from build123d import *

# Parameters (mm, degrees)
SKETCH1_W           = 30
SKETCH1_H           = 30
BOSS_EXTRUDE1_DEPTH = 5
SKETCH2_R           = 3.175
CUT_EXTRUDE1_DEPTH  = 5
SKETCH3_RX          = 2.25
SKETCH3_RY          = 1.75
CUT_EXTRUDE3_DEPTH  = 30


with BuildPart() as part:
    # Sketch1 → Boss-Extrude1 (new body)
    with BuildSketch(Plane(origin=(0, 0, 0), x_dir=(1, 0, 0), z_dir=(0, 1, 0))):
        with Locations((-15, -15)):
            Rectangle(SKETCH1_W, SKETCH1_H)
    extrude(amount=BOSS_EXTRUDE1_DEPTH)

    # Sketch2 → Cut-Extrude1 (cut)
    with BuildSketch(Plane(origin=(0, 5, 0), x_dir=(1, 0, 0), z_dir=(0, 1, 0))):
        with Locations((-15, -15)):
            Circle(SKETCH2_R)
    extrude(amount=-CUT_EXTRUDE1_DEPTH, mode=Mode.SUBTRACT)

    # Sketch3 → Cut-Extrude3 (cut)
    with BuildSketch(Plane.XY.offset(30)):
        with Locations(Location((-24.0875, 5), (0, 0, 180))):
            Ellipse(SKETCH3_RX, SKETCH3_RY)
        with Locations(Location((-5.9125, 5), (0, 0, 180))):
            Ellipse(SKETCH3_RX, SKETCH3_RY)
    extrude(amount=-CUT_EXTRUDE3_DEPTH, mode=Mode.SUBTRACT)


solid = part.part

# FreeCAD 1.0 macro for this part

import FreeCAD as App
import Part
import Sketcher

V = App.Vector
Q = App.Units.Quantity

doc = App.newDocument("Part")
body = doc.addObject("PartDesign::Body", "Body")

# Sketch on XZ plane
sketch1 = body.newObject("Sketcher::SketchObject", "Sketch")
sketch1.AttachmentSupport = (doc.getObject("XZ_Plane"), [""])
sketch1.MapMode = "FlatFace"
sketch1.addGeometry(Part.LineSegment(V(-30, 0, 0), V(-30, 30, 0)), False)
sketch1.addGeometry(Part.LineSegment(V(-30, 30, 0), V(0, 30, 0)), False)
sketch1.addGeometry(Part.LineSegment(V(0, 30, 0), V(0, 0, 0)), False)
sketch1.addGeometry(Part.LineSegment(V(0, 0, 0), V(-30, 0, 0)), False)
sketch1.addConstraint(Sketcher.Constraint("Coincident", 0, 2, 1, 1))
sketch1.addConstraint(Sketcher.Constraint("Coincident", 1, 2, 2, 1))
sketch1.addConstraint(Sketcher.Constraint("Coincident", 2, 2, 3, 1))
sketch1.addConstraint(Sketcher.Constraint("Coincident", 3, 2, 0, 1))
sketch1.addConstraint(Sketcher.Constraint("Vertical", 0))
sketch1.addConstraint(Sketcher.Constraint("Horizontal", 1))
sketch1.addConstraint(Sketcher.Constraint("Vertical", 2))
sketch1.addConstraint(Sketcher.Constraint("Horizontal", 3))
sketch1.addConstraint(Sketcher.Constraint("Coincident", 2, 2, -1, 1))
sketch1.addConstraint(Sketcher.Constraint("Equal", 3, 0))
sketch1.addConstraint(Sketcher.Constraint("DistanceX", 1, 1, 1, 2, Q("30 mm")))
pad1 = body.newObject("PartDesign::Pad", "Pad")
pad1.Profile = sketch1
pad1.Length = 5
pad1.Reversed = True

# Sketch on XZ plane
sketch2 = body.newObject("Sketcher::SketchObject", "Sketch001")
sketch2.AttachmentSupport = (doc.getObject("XZ_Plane"), [""])
sketch2.MapMode = "FlatFace"
sketch2.AttachmentOffset = App.Placement(V(0, 0, -5), App.Rotation())
sketch2.addGeometry(Part.Circle(V(-15, 15, 0), V(0, 0, 1), 3.2), False)
sketch2.addConstraint(Sketcher.Constraint("Diameter", 0, Q("6.35 mm")))
sketch2.addConstraint(Sketcher.Constraint("DistanceX", 0, 3, -1, 1, Q("15 mm")))
sketch2.addConstraint(Sketcher.Constraint("DistanceY", -1, 1, 0, 3, Q("15 mm")))
pocket1 = body.newObject("PartDesign::Pocket", "Pocket")
pocket1.Profile = sketch2
pocket1.Length = 5
pocket1.Reversed = True

# Sketch on XY plane
sketch3 = body.newObject("Sketcher::SketchObject", "Sketch002")
sketch3.AttachmentSupport = (doc.getObject("XY_Plane"), [""])
sketch3.MapMode = "FlatFace"
sketch3.AttachmentOffset = App.Placement(V(0, 0, 30), App.Rotation())
sketch3.addGeometry(Part.Ellipse(V(-26.3375, 5, 0), V(-24.0875, 3.25, 0), V(-24.0875, 5, 0)), False)
sketch3.addGeometry(Part.Ellipse(V(-8.1625, 5, 0), V(-5.9125, 3.25, 0), V(-5.9125, 5, 0)), False)
sketch3.addConstraint(Sketcher.Constraint("Block", 0))
sketch3.addConstraint(Sketcher.Constraint("Block", 1))
pocket2 = body.newObject("PartDesign::Pocket", "Pocket001")
pocket2.Profile = sketch3
pocket2.Length = 30

doc.recompute()
